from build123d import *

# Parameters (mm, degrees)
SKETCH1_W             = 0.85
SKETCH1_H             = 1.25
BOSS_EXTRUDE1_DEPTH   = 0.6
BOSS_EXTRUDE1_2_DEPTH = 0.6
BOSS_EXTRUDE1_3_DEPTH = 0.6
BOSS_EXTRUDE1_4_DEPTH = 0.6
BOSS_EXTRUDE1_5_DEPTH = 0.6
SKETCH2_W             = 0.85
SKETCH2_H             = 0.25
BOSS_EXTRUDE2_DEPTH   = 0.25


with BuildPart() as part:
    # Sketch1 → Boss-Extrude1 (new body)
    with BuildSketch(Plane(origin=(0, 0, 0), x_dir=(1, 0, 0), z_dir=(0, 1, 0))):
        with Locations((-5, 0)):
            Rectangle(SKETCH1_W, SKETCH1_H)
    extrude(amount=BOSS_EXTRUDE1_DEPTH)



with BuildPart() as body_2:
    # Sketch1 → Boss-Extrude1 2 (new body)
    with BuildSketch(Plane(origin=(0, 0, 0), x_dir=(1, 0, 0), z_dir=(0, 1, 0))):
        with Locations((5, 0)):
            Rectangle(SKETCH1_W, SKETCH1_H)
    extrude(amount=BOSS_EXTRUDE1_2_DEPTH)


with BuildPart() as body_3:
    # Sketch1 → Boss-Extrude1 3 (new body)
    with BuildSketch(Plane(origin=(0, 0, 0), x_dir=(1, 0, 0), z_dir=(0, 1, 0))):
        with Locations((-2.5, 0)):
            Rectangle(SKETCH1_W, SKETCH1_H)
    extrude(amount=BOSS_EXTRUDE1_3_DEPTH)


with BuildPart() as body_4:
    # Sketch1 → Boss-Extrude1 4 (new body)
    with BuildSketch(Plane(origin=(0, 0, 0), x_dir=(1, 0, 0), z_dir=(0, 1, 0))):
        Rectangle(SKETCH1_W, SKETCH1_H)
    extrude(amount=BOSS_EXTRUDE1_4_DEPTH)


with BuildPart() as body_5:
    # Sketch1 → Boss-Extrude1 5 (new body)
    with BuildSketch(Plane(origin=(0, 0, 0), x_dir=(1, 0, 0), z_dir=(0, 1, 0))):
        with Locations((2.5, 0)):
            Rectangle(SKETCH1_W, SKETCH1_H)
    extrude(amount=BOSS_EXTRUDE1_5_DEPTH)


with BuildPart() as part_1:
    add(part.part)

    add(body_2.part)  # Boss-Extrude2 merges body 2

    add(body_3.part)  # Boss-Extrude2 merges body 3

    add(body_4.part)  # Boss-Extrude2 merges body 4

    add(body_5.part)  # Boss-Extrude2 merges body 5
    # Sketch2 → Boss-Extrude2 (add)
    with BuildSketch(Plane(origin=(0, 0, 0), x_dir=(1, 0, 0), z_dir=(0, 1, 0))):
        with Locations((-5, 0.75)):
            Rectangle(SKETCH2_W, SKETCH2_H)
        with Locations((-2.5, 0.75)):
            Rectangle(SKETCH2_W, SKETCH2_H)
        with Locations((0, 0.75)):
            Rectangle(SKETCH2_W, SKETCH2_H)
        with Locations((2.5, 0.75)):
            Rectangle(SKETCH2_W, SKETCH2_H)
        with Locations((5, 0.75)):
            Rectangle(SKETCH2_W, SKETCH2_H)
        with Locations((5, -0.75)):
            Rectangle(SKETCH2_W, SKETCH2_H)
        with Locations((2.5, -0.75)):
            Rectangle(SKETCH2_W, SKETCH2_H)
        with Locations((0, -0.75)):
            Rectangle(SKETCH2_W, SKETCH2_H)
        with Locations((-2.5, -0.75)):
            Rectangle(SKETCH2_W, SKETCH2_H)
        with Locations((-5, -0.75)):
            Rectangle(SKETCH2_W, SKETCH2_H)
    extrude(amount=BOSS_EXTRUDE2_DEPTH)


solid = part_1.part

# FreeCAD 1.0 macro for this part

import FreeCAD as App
import Part
import Sketcher

V = App.Vector

doc = App.newDocument("Part")
body = doc.addObject("PartDesign::Body", "Body")

# Sketch on XZ plane
sketch1 = body.newObject("Sketcher::SketchObject", "Sketch")
sketch1.AttachmentSupport = (doc.getObject("XZ_Plane"), [""])
sketch1.MapMode = "FlatFace"
sketch1.addGeometry(Part.LineSegment(V(-5.425, -0.625, 0), V(-5.425, 0.625, 0)), False)
sketch1.addGeometry(Part.LineSegment(V(-5.425, 0.625, 0), V(-4.575, 0.625, 0)), False)
sketch1.addGeometry(Part.LineSegment(V(-4.575, 0.625, 0), V(-4.575, -0.625, 0)), False)
sketch1.addGeometry(Part.LineSegment(V(-4.575, -0.625, 0), V(-5.425, -0.625, 0)), False)
sketch1.addConstraint(Sketcher.Constraint("Coincident", 0, 2, 1, 1))
sketch1.addConstraint(Sketcher.Constraint("Coincident", 1, 2, 2, 1))
sketch1.addConstraint(Sketcher.Constraint("Coincident", 2, 2, 3, 1))
sketch1.addConstraint(Sketcher.Constraint("Coincident", 3, 2, 0, 1))
sketch1.addConstraint(Sketcher.Constraint("Vertical", 0))
sketch1.addConstraint(Sketcher.Constraint("Horizontal", 1))
sketch1.addConstraint(Sketcher.Constraint("Vertical", 2))
sketch1.addConstraint(Sketcher.Constraint("Horizontal", 3))
sketch1.addConstraint(Sketcher.Constraint("DistanceX", 1, 1, 1, 2, 0.85))
sketch1.addConstraint(Sketcher.Constraint("DistanceY", 0, 1, 0, 2, 1.25))
sketch1.addConstraint(Sketcher.Constraint("DistanceX", 0, 2, -1, 1, 5.425))
sketch1.addConstraint(Sketcher.Constraint("DistanceY", -1, 1, 0, 2, 0.625))
pad1 = body.newObject("PartDesign::Pad", "Pad")
pad1.Profile = sketch1
pad1.Length = 0.6
pad1.Reversed = True
body2 = doc.addObject("PartDesign::Body", "Body001")

# Sketch on XZ plane
sketch2 = body2.newObject("Sketcher::SketchObject", "Sketch001")
sketch2.AttachmentSupport = (doc.getObject("XZ_Plane001"), [""])
sketch2.MapMode = "FlatFace"
sketch2.addGeometry(Part.LineSegment(V(4.575, -0.625, 0), V(4.575, 0.625, 0)), False)
sketch2.addGeometry(Part.LineSegment(V(4.575, 0.625, 0), V(5.425, 0.625, 0)), False)
sketch2.addGeometry(Part.LineSegment(V(5.425, 0.625, 0), V(5.425, -0.625, 0)), False)
sketch2.addGeometry(Part.LineSegment(V(5.425, -0.625, 0), V(4.575, -0.625, 0)), False)
sketch2.addConstraint(Sketcher.Constraint("Coincident", 0, 2, 1, 1))
sketch2.addConstraint(Sketcher.Constraint("Coincident", 1, 2, 2, 1))
sketch2.addConstraint(Sketcher.Constraint("Coincident", 2, 2, 3, 1))
sketch2.addConstraint(Sketcher.Constraint("Coincident", 3, 2, 0, 1))
sketch2.addConstraint(Sketcher.Constraint("Vertical", 0))
sketch2.addConstraint(Sketcher.Constraint("Horizontal", 1))
sketch2.addConstraint(Sketcher.Constraint("Vertical", 2))
sketch2.addConstraint(Sketcher.Constraint("Horizontal", 3))
sketch2.addConstraint(Sketcher.Constraint("DistanceX", 1, 1, 1, 2, 0.85))
sketch2.addConstraint(Sketcher.Constraint("DistanceY", 0, 1, 0, 2, 1.25))
sketch2.addConstraint(Sketcher.Constraint("DistanceX", -1, 1, 0, 2, 4.575))
sketch2.addConstraint(Sketcher.Constraint("DistanceY", -1, 1, 0, 2, 0.625))
pad2 = body2.newObject("PartDesign::Pad", "Pad001")
pad2.Profile = sketch2
pad2.Length = 0.6
pad2.Reversed = True
body3 = doc.addObject("PartDesign::Body", "Body002")

# Sketch on XZ plane
sketch3 = body3.newObject("Sketcher::SketchObject", "Sketch002")
sketch3.AttachmentSupport = (doc.getObject("XZ_Plane002"), [""])
sketch3.MapMode = "FlatFace"
sketch3.addGeometry(Part.LineSegment(V(-2.925, -0.625, 0), V(-2.925, 0.625, 0)), False)
sketch3.addGeometry(Part.LineSegment(V(-2.925, 0.625, 0), V(-2.075, 0.625, 0)), False)
sketch3.addGeometry(Part.LineSegment(V(-2.075, 0.625, 0), V(-2.075, -0.625, 0)), False)
sketch3.addGeometry(Part.LineSegment(V(-2.075, -0.625, 0), V(-2.925, -0.625, 0)), False)
sketch3.addConstraint(Sketcher.Constraint("Coincident", 0, 2, 1, 1))
sketch3.addConstraint(Sketcher.Constraint("Coincident", 1, 2, 2, 1))
sketch3.addConstraint(Sketcher.Constraint("Coincident", 2, 2, 3, 1))
sketch3.addConstraint(Sketcher.Constraint("Coincident", 3, 2, 0, 1))
sketch3.addConstraint(Sketcher.Constraint("Vertical", 0))
sketch3.addConstraint(Sketcher.Constraint("Horizontal", 1))
sketch3.addConstraint(Sketcher.Constraint("Vertical", 2))
sketch3.addConstraint(Sketcher.Constraint("Horizontal", 3))
sketch3.addConstraint(Sketcher.Constraint("DistanceX", 1, 1, 1, 2, 0.85))
sketch3.addConstraint(Sketcher.Constraint("DistanceY", 0, 1, 0, 2, 1.25))
sketch3.addConstraint(Sketcher.Constraint("DistanceX", 0, 2, -1, 1, 2.925))
sketch3.addConstraint(Sketcher.Constraint("DistanceY", -1, 1, 0, 2, 0.625))
pad3 = body3.newObject("PartDesign::Pad", "Pad002")
pad3.Profile = sketch3
pad3.Length = 0.6
pad3.Reversed = True
body4 = doc.addObject("PartDesign::Body", "Body003")

# Sketch on XZ plane
sketch4 = body4.newObject("Sketcher::SketchObject", "Sketch003")
sketch4.AttachmentSupport = (doc.getObject("XZ_Plane003"), [""])
sketch4.MapMode = "FlatFace"
sketch4.addGeometry(Part.LineSegment(V(-0.425, -0.625, 0), V(-0.425, 0.625, 0)), False)
sketch4.addGeometry(Part.LineSegment(V(-0.425, 0.625, 0), V(0.425, 0.625, 0)), False)
sketch4.addGeometry(Part.LineSegment(V(0.425, 0.625, 0), V(0.425, -0.625, 0)), False)
sketch4.addGeometry(Part.LineSegment(V(0.425, -0.625, 0), V(-0.425, -0.625, 0)), False)
sketch4.addConstraint(Sketcher.Constraint("Coincident", 0, 2, 1, 1))
sketch4.addConstraint(Sketcher.Constraint("Coincident", 1, 2, 2, 1))
sketch4.addConstraint(Sketcher.Constraint("Coincident", 2, 2, 3, 1))
sketch4.addConstraint(Sketcher.Constraint("Coincident", 3, 2, 0, 1))
sketch4.addConstraint(Sketcher.Constraint("Vertical", 0))
sketch4.addConstraint(Sketcher.Constraint("Horizontal", 1))
sketch4.addConstraint(Sketcher.Constraint("Vertical", 2))
sketch4.addConstraint(Sketcher.Constraint("Horizontal", 3))
sketch4.addConstraint(Sketcher.Constraint("Symmetric", 0, 2, 2, 2, -1, 1))
sketch4.addConstraint(Sketcher.Constraint("DistanceX", 1, 1, 1, 2, 0.85))
sketch4.addConstraint(Sketcher.Constraint("DistanceY", 0, 1, 0, 2, 1.25))
pad4 = body4.newObject("PartDesign::Pad", "Pad003")
pad4.Profile = sketch4
pad4.Length = 0.6
pad4.Reversed = True
body5 = doc.addObject("PartDesign::Body", "Body004")

# Sketch on XZ plane
sketch5 = body5.newObject("Sketcher::SketchObject", "Sketch004")
sketch5.AttachmentSupport = (doc.getObject("XZ_Plane004"), [""])
sketch5.MapMode = "FlatFace"
sketch5.addGeometry(Part.LineSegment(V(2.075, -0.625, 0), V(2.075, 0.625, 0)), False)
sketch5.addGeometry(Part.LineSegment(V(2.075, 0.625, 0), V(2.925, 0.625, 0)), False)
sketch5.addGeometry(Part.LineSegment(V(2.925, 0.625, 0), V(2.925, -0.625, 0)), False)
sketch5.addGeometry(Part.LineSegment(V(2.925, -0.625, 0), V(2.075, -0.625, 0)), False)
sketch5.addConstraint(Sketcher.Constraint("Coincident", 0, 2, 1, 1))
sketch5.addConstraint(Sketcher.Constraint("Coincident", 1, 2, 2, 1))
sketch5.addConstraint(Sketcher.Constraint("Coincident", 2, 2, 3, 1))
sketch5.addConstraint(Sketcher.Constraint("Coincident", 3, 2, 0, 1))
sketch5.addConstraint(Sketcher.Constraint("Vertical", 0))
sketch5.addConstraint(Sketcher.Constraint("Horizontal", 1))
sketch5.addConstraint(Sketcher.Constraint("Vertical", 2))
sketch5.addConstraint(Sketcher.Constraint("Horizontal", 3))
sketch5.addConstraint(Sketcher.Constraint("DistanceX", 1, 1, 1, 2, 0.85))
sketch5.addConstraint(Sketcher.Constraint("DistanceY", 0, 1, 0, 2, 1.25))
sketch5.addConstraint(Sketcher.Constraint("DistanceX", -1, 1, 0, 2, 2.075))
sketch5.addConstraint(Sketcher.Constraint("DistanceY", -1, 1, 0, 2, 0.625))
pad5 = body5.newObject("PartDesign::Pad", "Pad004")
pad5.Profile = sketch5
pad5.Length = 0.6
pad5.Reversed = True
body.AllowCompound = True
doc.recompute()

boolean = body.newObject("PartDesign::Boolean", "Boolean")
boolean.Type = "Fuse"
boolean.addObjects([body2])
doc.recompute()

boolean2 = body.newObject("PartDesign::Boolean", "Boolean001")
boolean2.Type = "Fuse"
boolean2.addObjects([body3])
doc.recompute()

boolean3 = body.newObject("PartDesign::Boolean", "Boolean002")
boolean3.Type = "Fuse"
boolean3.addObjects([body4])
doc.recompute()

boolean4 = body.newObject("PartDesign::Boolean", "Boolean003")
boolean4.Type = "Fuse"
boolean4.addObjects([body5])

# Sketch on XZ plane
sketch6 = body.newObject("Sketcher::SketchObject", "Sketch005")
sketch6.AttachmentSupport = (doc.getObject("XZ_Plane"), [""])
sketch6.MapMode = "FlatFace"
sketch6.addGeometry(Part.LineSegment(V(-5.425, -0.875, 0), V(-5.425, -0.625, 0)), False)
sketch6.addGeometry(Part.LineSegment(V(-5.425, -0.625, 0), V(-4.575, -0.625, 0)), False)
sketch6.addGeometry(Part.LineSegment(V(-4.575, -0.625, 0), V(-4.575, -0.875, 0)), False)
sketch6.addGeometry(Part.LineSegment(V(-4.575, -0.875, 0), V(-5.425, -0.875, 0)), False)
sketch6.addGeometry(Part.LineSegment(V(-2.925, -0.875, 0), V(-2.925, -0.625, 0)), False)
sketch6.addGeometry(Part.LineSegment(V(-2.925, -0.625, 0), V(-2.075, -0.625, 0)), False)
sketch6.addGeometry(Part.LineSegment(V(-2.075, -0.625, 0), V(-2.075, -0.875, 0)), False)
sketch6.addGeometry(Part.LineSegment(V(-2.075, -0.875, 0), V(-2.925, -0.875, 0)), False)
sketch6.addGeometry(Part.LineSegment(V(-0.425, -0.875, 0), V(-0.425, -0.625, 0)), False)
sketch6.addGeometry(Part.LineSegment(V(-0.425, -0.625, 0), V(0.425, -0.625, 0)), False)
sketch6.addGeometry(Part.LineSegment(V(0.425, -0.625, 0), V(0.425, -0.875, 0)), False)
sketch6.addGeometry(Part.LineSegment(V(0.425, -0.875, 0), V(-0.425, -0.875, 0)), False)
sketch6.addGeometry(Part.LineSegment(V(2.075, -0.875, 0), V(2.075, -0.625, 0)), False)
sketch6.addGeometry(Part.LineSegment(V(2.075, -0.625, 0), V(2.925, -0.625, 0)), False)
sketch6.addGeometry(Part.LineSegment(V(2.925, -0.625, 0), V(2.925, -0.875, 0)), False)
sketch6.addGeometry(Part.LineSegment(V(2.925, -0.875, 0), V(2.075, -0.875, 0)), False)
sketch6.addGeometry(Part.LineSegment(V(4.575, -0.875, 0), V(4.575, -0.625, 0)), False)
sketch6.addGeometry(Part.LineSegment(V(4.575, -0.625, 0), V(5.425, -0.625, 0)), False)
sketch6.addGeometry(Part.LineSegment(V(5.425, -0.625, 0), V(5.425, -0.875, 0)), False)
sketch6.addGeometry(Part.LineSegment(V(5.425, -0.875, 0), V(4.575, -0.875, 0)), False)
sketch6.addGeometry(Part.LineSegment(V(4.575, 0.625, 0), V(4.575, 0.875, 0)), False)
sketch6.addGeometry(Part.LineSegment(V(4.575, 0.875, 0), V(5.425, 0.875, 0)), False)
sketch6.addGeometry(Part.LineSegment(V(5.425, 0.875, 0), V(5.425, 0.625, 0)), False)
sketch6.addGeometry(Part.LineSegment(V(5.425, 0.625, 0), V(4.575, 0.625, 0)), False)
sketch6.addGeometry(Part.LineSegment(V(2.075, 0.625, 0), V(2.075, 0.875, 0)), False)
sketch6.addGeometry(Part.LineSegment(V(2.075, 0.875, 0), V(2.925, 0.875, 0)), False)
sketch6.addGeometry(Part.LineSegment(V(2.925, 0.875, 0), V(2.925, 0.625, 0)), False)
sketch6.addGeometry(Part.LineSegment(V(2.925, 0.625, 0), V(2.075, 0.625, 0)), False)
sketch6.addGeometry(Part.LineSegment(V(-0.425, 0.625, 0), V(-0.425, 0.875, 0)), False)
sketch6.addGeometry(Part.LineSegment(V(-0.425, 0.875, 0), V(0.425, 0.875, 0)), False)
sketch6.addGeometry(Part.LineSegment(V(0.425, 0.875, 0), V(0.425, 0.625, 0)), False)
sketch6.addGeometry(Part.LineSegment(V(0.425, 0.625, 0), V(-0.425, 0.625, 0)), False)
sketch6.addGeometry(Part.LineSegment(V(-2.925, 0.625, 0), V(-2.925, 0.875, 0)), False)
sketch6.addGeometry(Part.LineSegment(V(-2.925, 0.875, 0), V(-2.075, 0.875, 0)), False)
sketch6.addGeometry(Part.LineSegment(V(-2.075, 0.875, 0), V(-2.075, 0.625, 0)), False)
sketch6.addGeometry(Part.LineSegment(V(-2.075, 0.625, 0), V(-2.925, 0.625, 0)), False)
sketch6.addGeometry(Part.LineSegment(V(-5.425, 0.625, 0), V(-5.425, 0.875, 0)), False)
sketch6.addGeometry(Part.LineSegment(V(-5.425, 0.875, 0), V(-4.575, 0.875, 0)), False)
sketch6.addGeometry(Part.LineSegment(V(-4.575, 0.875, 0), V(-4.575, 0.625, 0)), False)
sketch6.addGeometry(Part.LineSegment(V(-4.575, 0.625, 0), V(-5.425, 0.625, 0)), False)
sketch6.addConstraint(Sketcher.Constraint("Coincident", 0, 2, 1, 1))
sketch6.addConstraint(Sketcher.Constraint("Coincident", 1, 2, 2, 1))
sketch6.addConstraint(Sketcher.Constraint("Coincident", 2, 2, 3, 1))
sketch6.addConstraint(Sketcher.Constraint("Coincident", 3, 2, 0, 1))
sketch6.addConstraint(Sketcher.Constraint("Coincident", 4, 2, 5, 1))
sketch6.addConstraint(Sketcher.Constraint("Coincident", 5, 2, 6, 1))
sketch6.addConstraint(Sketcher.Constraint("Coincident", 6, 2, 7, 1))
sketch6.addConstraint(Sketcher.Constraint("Coincident", 7, 2, 4, 1))
sketch6.addConstraint(Sketcher.Constraint("Coincident", 8, 2, 9, 1))
sketch6.addConstraint(Sketcher.Constraint("Coincident", 9, 2, 10, 1))
sketch6.addConstraint(Sketcher.Constraint("Coincident", 10, 2, 11, 1))
sketch6.addConstraint(Sketcher.Constraint("Coincident", 11, 2, 8, 1))
sketch6.addConstraint(Sketcher.Constraint("Coincident", 12, 2, 13, 1))
sketch6.addConstraint(Sketcher.Constraint("Coincident", 13, 2, 14, 1))
sketch6.addConstraint(Sketcher.Constraint("Coincident", 14, 2, 15, 1))
sketch6.addConstraint(Sketcher.Constraint("Coincident", 15, 2, 12, 1))
sketch6.addConstraint(Sketcher.Constraint("Coincident", 16, 2, 17, 1))
sketch6.addConstraint(Sketcher.Constraint("Coincident", 17, 2, 18, 1))
sketch6.addConstraint(Sketcher.Constraint("Coincident", 18, 2, 19, 1))
sketch6.addConstraint(Sketcher.Constraint("Coincident", 19, 2, 16, 1))
sketch6.addConstraint(Sketcher.Constraint("Coincident", 20, 2, 21, 1))
sketch6.addConstraint(Sketcher.Constraint("Coincident", 21, 2, 22, 1))
sketch6.addConstraint(Sketcher.Constraint("Coincident", 22, 2, 23, 1))
sketch6.addConstraint(Sketcher.Constraint("Coincident", 23, 2, 20, 1))
sketch6.addConstraint(Sketcher.Constraint("Coincident", 24, 2, 25, 1))
sketch6.addConstraint(Sketcher.Constraint("Coincident", 25, 2, 26, 1))
sketch6.addConstraint(Sketcher.Constraint("Coincident", 26, 2, 27, 1))
sketch6.addConstraint(Sketcher.Constraint("Coincident", 27, 2, 24, 1))
sketch6.addConstraint(Sketcher.Constraint("Coincident", 28, 2, 29, 1))
sketch6.addConstraint(Sketcher.Constraint("Coincident", 29, 2, 30, 1))
sketch6.addConstraint(Sketcher.Constraint("Coincident", 30, 2, 31, 1))
sketch6.addConstraint(Sketcher.Constraint("Coincident", 31, 2, 28, 1))
sketch6.addConstraint(Sketcher.Constraint("Coincident", 32, 2, 33, 1))
sketch6.addConstraint(Sketcher.Constraint("Coincident", 33, 2, 34, 1))
sketch6.addConstraint(Sketcher.Constraint("Coincident", 34, 2, 35, 1))
sketch6.addConstraint(Sketcher.Constraint("Coincident", 35, 2, 32, 1))
sketch6.addConstraint(Sketcher.Constraint("Coincident", 36, 2, 37, 1))
sketch6.addConstraint(Sketcher.Constraint("Coincident", 37, 2, 38, 1))
sketch6.addConstraint(Sketcher.Constraint("Coincident", 38, 2, 39, 1))
sketch6.addConstraint(Sketcher.Constraint("Coincident", 39, 2, 36, 1))
sketch6.addConstraint(Sketcher.Constraint("Vertical", 0))
sketch6.addConstraint(Sketcher.Constraint("Horizontal", 1))
sketch6.addConstraint(Sketcher.Constraint("Vertical", 2))
sketch6.addConstraint(Sketcher.Constraint("Horizontal", 3))
sketch6.addConstraint(Sketcher.Constraint("Vertical", 4))
sketch6.addConstraint(Sketcher.Constraint("Horizontal", 5))
sketch6.addConstraint(Sketcher.Constraint("Vertical", 6))
sketch6.addConstraint(Sketcher.Constraint("Horizontal", 7))
sketch6.addConstraint(Sketcher.Constraint("Vertical", 8))
sketch6.addConstraint(Sketcher.Constraint("Horizontal", 9))
sketch6.addConstraint(Sketcher.Constraint("Vertical", 10))
sketch6.addConstraint(Sketcher.Constraint("Horizontal", 11))
sketch6.addConstraint(Sketcher.Constraint("Vertical", 12))
sketch6.addConstraint(Sketcher.Constraint("Horizontal", 13))
sketch6.addConstraint(Sketcher.Constraint("Vertical", 14))
sketch6.addConstraint(Sketcher.Constraint("Horizontal", 15))
sketch6.addConstraint(Sketcher.Constraint("Vertical", 16))
sketch6.addConstraint(Sketcher.Constraint("Horizontal", 17))
sketch6.addConstraint(Sketcher.Constraint("Vertical", 18))
sketch6.addConstraint(Sketcher.Constraint("Horizontal", 19))
sketch6.addConstraint(Sketcher.Constraint("Vertical", 20))
sketch6.addConstraint(Sketcher.Constraint("Horizontal", 21))
sketch6.addConstraint(Sketcher.Constraint("Vertical", 22))
sketch6.addConstraint(Sketcher.Constraint("Horizontal", 23))
sketch6.addConstraint(Sketcher.Constraint("Vertical", 24))
sketch6.addConstraint(Sketcher.Constraint("Horizontal", 25))
sketch6.addConstraint(Sketcher.Constraint("Vertical", 26))
sketch6.addConstraint(Sketcher.Constraint("Horizontal", 27))
sketch6.addConstraint(Sketcher.Constraint("Vertical", 28))
sketch6.addConstraint(Sketcher.Constraint("Horizontal", 29))
sketch6.addConstraint(Sketcher.Constraint("Vertical", 30))
sketch6.addConstraint(Sketcher.Constraint("Horizontal", 31))
sketch6.addConstraint(Sketcher.Constraint("Vertical", 32))
sketch6.addConstraint(Sketcher.Constraint("Horizontal", 33))
sketch6.addConstraint(Sketcher.Constraint("Vertical", 34))
sketch6.addConstraint(Sketcher.Constraint("Horizontal", 35))
sketch6.addConstraint(Sketcher.Constraint("Vertical", 36))
sketch6.addConstraint(Sketcher.Constraint("Horizontal", 37))
sketch6.addConstraint(Sketcher.Constraint("Vertical", 38))
sketch6.addConstraint(Sketcher.Constraint("Horizontal", 39))
sketch6.addConstraint(Sketcher.Constraint("Symmetric", 2, 2, 20, 2, -1, 1))
sketch6.addConstraint(Sketcher.Constraint("Symmetric", 0, 2, 22, 2, -1, 1))
sketch6.addConstraint(Sketcher.Constraint("Symmetric", 6, 2, 24, 2, -1, 1))
sketch6.addConstraint(Sketcher.Constraint("Symmetric", 4, 2, 26, 2, -1, 1))
sketch6.addConstraint(Sketcher.Constraint("Symmetric", 10, 2, 28, 2, -1, 1))
sketch6.addConstraint(Sketcher.Constraint("Symmetric", 8, 2, 30, 2, -1, 1))
sketch6.addConstraint(Sketcher.Constraint("Symmetric", 14, 2, 32, 2, -1, 1))
sketch6.addConstraint(Sketcher.Constraint("Symmetric", 12, 2, 34, 2, -1, 1))
sketch6.addConstraint(Sketcher.Constraint("Symmetric", 18, 2, 36, 2, -1, 1))
sketch6.addConstraint(Sketcher.Constraint("Symmetric", 16, 2, 38, 2, -1, 1))
sketch6.addConstraint(Sketcher.Constraint("Symmetric", 5, 2, 12, 2, -2))
sketch6.addConstraint(Sketcher.Constraint("Symmetric", 7, 2, 14, 2, -2))
sketch6.addConstraint(Sketcher.Constraint("Symmetric", 1, 2, 16, 2, -2))
sketch6.addConstraint(Sketcher.Constraint("Symmetric", 3, 2, 18, 2, -2))
sketch6.addConstraint(Sketcher.Constraint("Horizontal", 1, 2, 4, 2))
sketch6.addConstraint(Sketcher.Constraint("Horizontal", 3, 2, 6, 2))
sketch6.addConstraint(Sketcher.Constraint("Horizontal", 5, 2, 8, 2))
sketch6.addConstraint(Sketcher.Constraint("Horizontal", 7, 2, 10, 2))
sketch6.addConstraint(Sketcher.Constraint("Vertical", 11, 2, 28, 2))
sketch6.addConstraint(Sketcher.Constraint("Equal", 3, 5))
sketch6.addConstraint(Sketcher.Constraint("Equal", 7, 9))
sketch6.addConstraint(Sketcher.Constraint("DistanceX", 1, 1, 1, 2, 0.85))
sketch6.addConstraint(Sketcher.Constraint("DistanceY", 0, 1, 0, 2, 0.25))
sketch6.addConstraint(Sketcher.Constraint("DistanceX", 0, 2, 4, 2, 2.5))
sketch6.addConstraint(Sketcher.Constraint("DistanceX", 4, 2, 8, 2, 2.5))
sketch6.addConstraint(Sketcher.Constraint("DistanceY", 16, 2, 20, 2, 1.5))
pad6 = body.newObject("PartDesign::Pad", "Pad005")
pad6.Profile = sketch6
pad6.Length = 0.25
pad6.Reversed = True

doc.recompute()
